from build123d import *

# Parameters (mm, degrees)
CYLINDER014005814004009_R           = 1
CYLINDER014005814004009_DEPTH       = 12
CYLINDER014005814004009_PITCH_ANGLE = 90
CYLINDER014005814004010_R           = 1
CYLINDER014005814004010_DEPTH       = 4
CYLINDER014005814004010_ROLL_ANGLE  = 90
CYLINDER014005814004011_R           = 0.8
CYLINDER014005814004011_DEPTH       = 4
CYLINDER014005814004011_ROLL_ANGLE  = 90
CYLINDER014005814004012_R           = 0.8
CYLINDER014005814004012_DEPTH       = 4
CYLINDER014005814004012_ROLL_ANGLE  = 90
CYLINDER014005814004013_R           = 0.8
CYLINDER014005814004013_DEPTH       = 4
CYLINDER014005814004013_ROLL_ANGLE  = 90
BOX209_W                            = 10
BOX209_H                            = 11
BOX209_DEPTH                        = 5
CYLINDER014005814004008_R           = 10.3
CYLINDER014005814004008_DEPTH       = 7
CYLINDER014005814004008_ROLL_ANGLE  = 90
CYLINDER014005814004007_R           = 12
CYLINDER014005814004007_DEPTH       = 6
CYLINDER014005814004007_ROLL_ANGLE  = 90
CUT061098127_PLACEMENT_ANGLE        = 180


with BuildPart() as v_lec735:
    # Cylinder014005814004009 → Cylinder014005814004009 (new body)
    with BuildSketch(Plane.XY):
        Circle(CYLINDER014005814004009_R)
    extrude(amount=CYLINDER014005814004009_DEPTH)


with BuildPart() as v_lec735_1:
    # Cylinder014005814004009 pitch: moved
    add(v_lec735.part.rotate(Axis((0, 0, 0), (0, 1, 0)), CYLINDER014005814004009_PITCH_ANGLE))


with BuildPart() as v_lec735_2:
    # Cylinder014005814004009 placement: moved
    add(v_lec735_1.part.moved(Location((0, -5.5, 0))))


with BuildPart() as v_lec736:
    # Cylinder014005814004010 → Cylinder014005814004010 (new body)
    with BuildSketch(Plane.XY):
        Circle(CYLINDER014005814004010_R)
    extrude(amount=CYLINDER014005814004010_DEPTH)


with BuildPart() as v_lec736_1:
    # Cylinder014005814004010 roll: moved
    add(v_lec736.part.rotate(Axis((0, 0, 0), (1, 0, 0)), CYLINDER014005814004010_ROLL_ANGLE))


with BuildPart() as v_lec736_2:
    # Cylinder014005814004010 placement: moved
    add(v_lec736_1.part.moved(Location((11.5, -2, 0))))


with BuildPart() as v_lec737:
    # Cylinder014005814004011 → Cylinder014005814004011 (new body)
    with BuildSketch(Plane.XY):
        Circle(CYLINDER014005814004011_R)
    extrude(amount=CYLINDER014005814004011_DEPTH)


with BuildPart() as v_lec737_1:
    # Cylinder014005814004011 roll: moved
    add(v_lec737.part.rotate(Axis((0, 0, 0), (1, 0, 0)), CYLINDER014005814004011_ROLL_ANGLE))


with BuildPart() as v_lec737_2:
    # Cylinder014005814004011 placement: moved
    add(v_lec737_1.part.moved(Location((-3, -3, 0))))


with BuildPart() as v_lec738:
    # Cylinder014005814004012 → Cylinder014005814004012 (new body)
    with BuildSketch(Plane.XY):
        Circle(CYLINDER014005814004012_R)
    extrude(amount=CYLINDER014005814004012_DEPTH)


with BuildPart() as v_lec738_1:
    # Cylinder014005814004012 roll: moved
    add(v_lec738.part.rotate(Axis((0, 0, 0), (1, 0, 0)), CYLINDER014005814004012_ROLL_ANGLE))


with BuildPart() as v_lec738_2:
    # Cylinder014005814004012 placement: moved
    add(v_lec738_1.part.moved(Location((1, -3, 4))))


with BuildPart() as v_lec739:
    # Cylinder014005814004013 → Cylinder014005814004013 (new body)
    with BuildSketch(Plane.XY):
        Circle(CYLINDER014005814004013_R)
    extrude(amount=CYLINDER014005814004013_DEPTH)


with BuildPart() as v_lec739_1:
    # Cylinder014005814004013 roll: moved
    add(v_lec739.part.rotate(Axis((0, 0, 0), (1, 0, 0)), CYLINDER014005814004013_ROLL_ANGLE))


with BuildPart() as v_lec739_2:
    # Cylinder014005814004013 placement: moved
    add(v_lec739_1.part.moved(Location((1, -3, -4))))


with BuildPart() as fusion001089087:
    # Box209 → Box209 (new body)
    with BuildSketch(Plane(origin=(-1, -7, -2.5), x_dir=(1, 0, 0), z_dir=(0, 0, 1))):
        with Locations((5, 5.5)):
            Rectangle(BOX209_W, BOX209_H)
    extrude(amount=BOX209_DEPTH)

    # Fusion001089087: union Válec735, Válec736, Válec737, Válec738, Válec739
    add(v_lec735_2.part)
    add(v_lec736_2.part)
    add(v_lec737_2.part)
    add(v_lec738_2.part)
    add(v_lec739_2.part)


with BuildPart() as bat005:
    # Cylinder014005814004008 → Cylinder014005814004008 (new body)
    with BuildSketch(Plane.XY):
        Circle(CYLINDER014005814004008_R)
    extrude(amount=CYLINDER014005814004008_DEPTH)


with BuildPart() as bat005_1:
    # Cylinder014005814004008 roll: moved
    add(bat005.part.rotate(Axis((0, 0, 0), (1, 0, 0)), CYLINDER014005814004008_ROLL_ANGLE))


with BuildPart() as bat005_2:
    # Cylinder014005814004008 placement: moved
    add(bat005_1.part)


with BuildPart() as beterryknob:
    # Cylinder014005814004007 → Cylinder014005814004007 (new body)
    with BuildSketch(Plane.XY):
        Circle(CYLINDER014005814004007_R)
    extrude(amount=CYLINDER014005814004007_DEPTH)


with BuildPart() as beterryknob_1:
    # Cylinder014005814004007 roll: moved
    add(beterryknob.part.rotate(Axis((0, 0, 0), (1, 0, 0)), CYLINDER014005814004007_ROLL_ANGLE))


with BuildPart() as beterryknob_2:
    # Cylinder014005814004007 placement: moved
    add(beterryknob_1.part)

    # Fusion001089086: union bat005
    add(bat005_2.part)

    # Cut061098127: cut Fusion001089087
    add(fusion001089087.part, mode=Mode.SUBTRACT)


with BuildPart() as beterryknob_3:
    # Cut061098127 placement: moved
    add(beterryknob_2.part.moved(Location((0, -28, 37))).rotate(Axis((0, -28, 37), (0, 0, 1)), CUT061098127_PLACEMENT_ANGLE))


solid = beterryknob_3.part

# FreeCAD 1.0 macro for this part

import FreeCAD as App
import Part
import Sketcher

V = App.Vector


def add_polygon(sketch, points):
    """Adds a closed chain of lines whose ends are joined by coincident constraints."""
    first, n = sketch.GeometryCount, len(points)
    for a, b in zip(points, points[1:] + points[:1]):
        sketch.addGeometry(Part.LineSegment(App.Vector(*a, 0), App.Vector(*b, 0)), False)
    for i in range(n):
        sketch.addConstraint(Sketcher.Constraint("Coincident", first + i, 2, first + (i + 1) % n, 1))

doc = App.newDocument("Part")
body = doc.addObject("PartDesign::Body", "Body")

# Sketch on XY plane
sketch1 = body.newObject("Sketcher::SketchObject", "Sketch")
sketch1.AttachmentSupport = (doc.getObject("XY_Plane"), [""])
sketch1.MapMode = "FlatFace"
sketch1.addGeometry(Part.Circle(V(0, 0, 0), V(0, 0, 1), 1), False)
sketch1.addConstraint([
    Sketcher.Constraint("Coincident", 0, 3, -1, 1),
    Sketcher.Constraint("Diameter", 0, 2.0),
])
pad1 = body.newObject("PartDesign::Pad", "Pad")
pad1.Profile = sketch1
pad1.Length = 12
body2 = doc.addObject("PartDesign::Body", "Body001")
doc.recompute()

body.Placement = App.Placement(V(0, 0, 0), App.Rotation(V(0, 1, 0), 90))
boolean = body2.newObject("PartDesign::Boolean", "Boolean")
boolean.Type = "Fuse"
boolean.addObjects([body])
body3 = doc.addObject("PartDesign::Body", "Body002")
doc.recompute()

body2.Placement = App.Placement(V(0, -5.5, 0), App.Rotation(V(0, 0, 1), 0))
boolean2 = body3.newObject("PartDesign::Boolean", "Boolean001")
boolean2.Type = "Fuse"
boolean2.addObjects([body2])
body4 = doc.addObject("PartDesign::Body", "Body003")

# Sketch on XY plane
sketch2 = body4.newObject("Sketcher::SketchObject", "Sketch001")
sketch2.AttachmentSupport = (doc.getObject("XY_Plane003"), [""])
sketch2.MapMode = "FlatFace"
sketch2.addGeometry(Part.Circle(V(0, 0, 0), V(0, 0, 1), 1), False)
sketch2.addConstraint([
    Sketcher.Constraint("Coincident", 0, 3, -1, 1),
    Sketcher.Constraint("Diameter", 0, 2.0),
])
pad2 = body4.newObject("PartDesign::Pad", "Pad001")
pad2.Profile = sketch2
pad2.Length = 4
body5 = doc.addObject("PartDesign::Body", "Body004")
doc.recompute()

body4.Placement = App.Placement(V(0, 0, 0), App.Rotation(V(1, 0, 0), 90))
boolean3 = body5.newObject("PartDesign::Boolean", "Boolean002")
boolean3.Type = "Fuse"
boolean3.addObjects([body4])
body6 = doc.addObject("PartDesign::Body", "Body005")
doc.recompute()

body5.Placement = App.Placement(V(11.5, -2, 0), App.Rotation(V(0, 0, 1), 0))
boolean4 = body6.newObject("PartDesign::Boolean", "Boolean003")
boolean4.Type = "Fuse"
boolean4.addObjects([body5])
body7 = doc.addObject("PartDesign::Body", "Body006")

# Sketch on XY plane
sketch3 = body7.newObject("Sketcher::SketchObject", "Sketch002")
sketch3.AttachmentSupport = (doc.getObject("XY_Plane006"), [""])
sketch3.MapMode = "FlatFace"
sketch3.addGeometry(Part.Circle(V(0, 0, 0), V(0, 0, 1), 0.8), False)
sketch3.addConstraint([
    Sketcher.Constraint("Coincident", 0, 3, -1, 1),
    Sketcher.Constraint("Diameter", 0, 1.6),
])
pad3 = body7.newObject("PartDesign::Pad", "Pad002")
pad3.Profile = sketch3
pad3.Length = 4
body8 = doc.addObject("PartDesign::Body", "Body007")
doc.recompute()

body7.Placement = App.Placement(V(0, 0, 0), App.Rotation(V(1, 0, 0), 90))
boolean5 = body8.newObject("PartDesign::Boolean", "Boolean004")
boolean5.Type = "Fuse"
boolean5.addObjects([body7])
body9 = doc.addObject("PartDesign::Body", "Body008")
doc.recompute()

body8.Placement = App.Placement(V(-3, -3, 0), App.Rotation(V(0, 0, 1), 0))
boolean6 = body9.newObject("PartDesign::Boolean", "Boolean005")
boolean6.Type = "Fuse"
boolean6.addObjects([body8])
body10 = doc.addObject("PartDesign::Body", "Body009")

# Sketch on XY plane
sketch4 = body10.newObject("Sketcher::SketchObject", "Sketch003")
sketch4.AttachmentSupport = (doc.getObject("XY_Plane009"), [""])
sketch4.MapMode = "FlatFace"
sketch4.addGeometry(Part.Circle(V(0, 0, 0), V(0, 0, 1), 0.8), False)
sketch4.addConstraint([
    Sketcher.Constraint("Coincident", 0, 3, -1, 1),
    Sketcher.Constraint("Diameter", 0, 1.6),
])
pad4 = body10.newObject("PartDesign::Pad", "Pad003")
pad4.Profile = sketch4
pad4.Length = 4
body11 = doc.addObject("PartDesign::Body", "Body010")
doc.recompute()

body10.Placement = App.Placement(V(0, 0, 0), App.Rotation(V(1, 0, 0), 90))
boolean7 = body11.newObject("PartDesign::Boolean", "Boolean006")
boolean7.Type = "Fuse"
boolean7.addObjects([body10])
body12 = doc.addObject("PartDesign::Body", "Body011")
doc.recompute()

body11.Placement = App.Placement(V(1, -3, 4), App.Rotation(V(0, 0, 1), 0))
boolean8 = body12.newObject("PartDesign::Boolean", "Boolean007")
boolean8.Type = "Fuse"
boolean8.addObjects([body11])
body13 = doc.addObject("PartDesign::Body", "Body012")

# Sketch on XY plane
sketch5 = body13.newObject("Sketcher::SketchObject", "Sketch004")
sketch5.AttachmentSupport = (doc.getObject("XY_Plane012"), [""])
sketch5.MapMode = "FlatFace"
sketch5.addGeometry(Part.Circle(V(0, 0, 0), V(0, 0, 1), 0.8), False)
sketch5.addConstraint([
    Sketcher.Constraint("Coincident", 0, 3, -1, 1),
    Sketcher.Constraint("Diameter", 0, 1.6),
])
pad5 = body13.newObject("PartDesign::Pad", "Pad004")
pad5.Profile = sketch5
pad5.Length = 4
body14 = doc.addObject("PartDesign::Body", "Body013")
doc.recompute()

body13.Placement = App.Placement(V(0, 0, 0), App.Rotation(V(1, 0, 0), 90))
boolean9 = body14.newObject("PartDesign::Boolean", "Boolean008")
boolean9.Type = "Fuse"
boolean9.addObjects([body13])
body15 = doc.addObject("PartDesign::Body", "Body014")
doc.recompute()

body14.Placement = App.Placement(V(1, -3, -4), App.Rotation(V(0, 0, 1), 0))
boolean10 = body15.newObject("PartDesign::Boolean", "Boolean009")
boolean10.Type = "Fuse"
boolean10.addObjects([body14])
body16 = doc.addObject("PartDesign::Body", "Body015")
body16.AllowCompound = True

# Sketch on XY plane
sketch6 = body16.newObject("Sketcher::SketchObject", "Sketch005")
sketch6.AttachmentSupport = (doc.getObject("XY_Plane015"), [""])
sketch6.MapMode = "FlatFace"
sketch6.AttachmentOffset = App.Placement(V(0, 0, -2.5), App.Rotation())
add_polygon(sketch6, [(-1, 4), (-1, -7), (9, -7), (9, 4)])  # lines 0-3
sketch6.addConstraint([
    Sketcher.Constraint("Vertical", 0),
    Sketcher.Constraint("Horizontal", 1),
    Sketcher.Constraint("Vertical", 2),
    Sketcher.Constraint("Horizontal", 3),
    Sketcher.Constraint("DistanceX", 1, 1, 1, 2, 10.0),
    Sketcher.Constraint("DistanceY", 0, 2, 0, 1, 11.0),
    Sketcher.Constraint("DistanceX", 0, 2, -1, 1, 1.0),
    Sketcher.Constraint("DistanceY", 0, 2, -1, 1, 7.0),
])
pad6 = body16.newObject("PartDesign::Pad", "Pad005")
pad6.Profile = sketch6
pad6.Length = 5
doc.recompute()

boolean11 = body16.newObject("PartDesign::Boolean", "Boolean010")
boolean11.Type = "Fuse"
boolean11.addObjects([body3])
doc.recompute()

boolean12 = body16.newObject("PartDesign::Boolean", "Boolean011")
boolean12.Type = "Fuse"
boolean12.addObjects([body6])
doc.recompute()

boolean13 = body16.newObject("PartDesign::Boolean", "Boolean012")
boolean13.Type = "Fuse"
boolean13.addObjects([body9])
doc.recompute()

boolean14 = body16.newObject("PartDesign::Boolean", "Boolean013")
boolean14.Type = "Fuse"
boolean14.addObjects([body12])
doc.recompute()

boolean15 = body16.newObject("PartDesign::Boolean", "Boolean014")
boolean15.Type = "Fuse"
boolean15.addObjects([body15])
body17 = doc.addObject("PartDesign::Body", "Body016")

# Sketch on XY plane
sketch7 = body17.newObject("Sketcher::SketchObject", "Sketch006")
sketch7.AttachmentSupport = (doc.getObject("XY_Plane016"), [""])
sketch7.MapMode = "FlatFace"
sketch7.addGeometry(Part.Circle(V(0, 0, 0), V(0, 0, 1), 10), False)
sketch7.addConstraint([
    Sketcher.Constraint("Coincident", 0, 3, -1, 1),
    Sketcher.Constraint("Diameter", 0, 20.6),
])
pad7 = body17.newObject("PartDesign::Pad", "Pad006")
pad7.Profile = sketch7
pad7.Length = 7
body18 = doc.addObject("PartDesign::Body", "Body017")
doc.recompute()

body17.Placement = App.Placement(V(0, 0, 0), App.Rotation(V(1, 0, 0), 90))
boolean16 = body18.newObject("PartDesign::Boolean", "Boolean015")
boolean16.Type = "Fuse"
boolean16.addObjects([body17])
body19 = doc.addObject("PartDesign::Body", "Body018")

# Sketch on XY plane
sketch8 = body19.newObject("Sketcher::SketchObject", "Sketch007")
sketch8.AttachmentSupport = (doc.getObject("XY_Plane018"), [""])
sketch8.MapMode = "FlatFace"
sketch8.addGeometry(Part.Circle(V(0, 0, 0), V(0, 0, 1), 12), False)
sketch8.addConstraint([
    Sketcher.Constraint("Coincident", 0, 3, -1, 1),
    Sketcher.Constraint("Diameter", 0, 24.0),
])
pad8 = body19.newObject("PartDesign::Pad", "Pad007")
pad8.Profile = sketch8
pad8.Length = 6
body20 = doc.addObject("PartDesign::Body", "Body019")
doc.recompute()

body19.Placement = App.Placement(V(0, 0, 0), App.Rotation(V(1, 0, 0), 90))
boolean17 = body20.newObject("PartDesign::Boolean", "Boolean016")
boolean17.Type = "Fuse"
boolean17.addObjects([body19])
doc.recompute()

boolean18 = body20.newObject("PartDesign::Boolean", "Boolean017")
boolean18.Type = "Fuse"
boolean18.addObjects([body18])
doc.recompute()

boolean19 = body20.newObject("PartDesign::Boolean", "Boolean018")
boolean19.Type = "Cut"
boolean19.addObjects([body16])
body21 = doc.addObject("PartDesign::Body", "Body020")
doc.recompute()

body20.Placement = App.Placement(V(0, -28, 37), App.Rotation(V(0, 0, 1), 180))
boolean20 = body21.newObject("PartDesign::Boolean", "Boolean019")
boolean20.Type = "Fuse"
boolean20.addObjects([body20])

doc.recompute()
